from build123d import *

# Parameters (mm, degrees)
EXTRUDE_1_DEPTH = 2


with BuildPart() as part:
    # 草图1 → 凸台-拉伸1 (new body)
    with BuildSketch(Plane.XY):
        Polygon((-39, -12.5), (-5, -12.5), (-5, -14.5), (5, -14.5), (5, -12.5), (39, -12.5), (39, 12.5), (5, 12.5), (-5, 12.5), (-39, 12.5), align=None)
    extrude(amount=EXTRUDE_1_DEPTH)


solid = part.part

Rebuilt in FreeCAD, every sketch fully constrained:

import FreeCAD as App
import Part
import Sketcher
Q = App.Units.Quantity

doc = App.newDocument("Part")
body = doc.addObject("PartDesign::Body", "Body")

sketch1 = body.newObject("Sketcher::SketchObject", "Sketch")
sketch1.AttachmentSupport = (doc.getObject("XY_Plane"), [""])
sketch1.MapMode = "FlatFace"
sketch1.addGeometry([
    Part.LineSegment(App.Vector(-39, -12.5, 0), App.Vector(-5, -12.5, 0)),
    Part.LineSegment(App.Vector(-5, -12.5, 0), App.Vector(-5, -14.5, 0)),
    Part.LineSegment(App.Vector(-5, -14.5, 0), App.Vector(5, -14.5, 0)),
    Part.LineSegment(App.Vector(5, -14.5, 0), App.Vector(5, -12.5, 0)),
    Part.LineSegment(App.Vector(5, -12.5, 0), App.Vector(39, -12.5, 0)),
    Part.LineSegment(App.Vector(39, -12.5, 0), App.Vector(39, 12.5, 0)),
    Part.LineSegment(App.Vector(39, 12.5, 0), App.Vector(-39, 12.5, 0)),
    Part.LineSegment(App.Vector(-39, 12.5, 0), App.Vector(-39, -12.5, 0)),
], False)
sketch1.addConstraint([
    Sketcher.Constraint("Coincident", 0, 2, 1, 1),
    Sketcher.Constraint("Coincident", 1, 2, 2, 1),
    Sketcher.Constraint("Coincident", 2, 2, 3, 1),
    Sketcher.Constraint("Coincident", 3, 2, 4, 1),
    Sketcher.Constraint("Coincident", 4, 2, 5, 1),
    Sketcher.Constraint("Coincident", 5, 2, 6, 1),
    Sketcher.Constraint("Coincident", 6, 2, 7, 1),
    Sketcher.Constraint("Coincident", 7, 2, 0, 1),
    Sketcher.Constraint("Horizontal", 0),
    Sketcher.Constraint("Vertical", 1),
    Sketcher.Constraint("Horizontal", 2),
    Sketcher.Constraint("Vertical", 3),
    Sketcher.Constraint("Horizontal", 4),
    Sketcher.Constraint("Vertical", 5),
    Sketcher.Constraint("Horizontal", 6),
    Sketcher.Constraint("Vertical", 7),
    Sketcher.Constraint("Symmetric", 4, 2, 6, 2, -1, 1),
    Sketcher.Constraint("Symmetric", 0, 2, 3, 2, -2),
    Sketcher.Constraint("DistanceX", 0, 1, 0, 2, Q("34 mm")),
    Sketcher.Constraint("DistanceX", 2, 1, 2, 2, Q("10 mm")),
    Sketcher.Constraint("DistanceY", 1, 2, 1, 1, Q("2 mm")),
    Sketcher.Constraint("DistanceY", 5, 1, 5, 2, Q("25 mm")),
])
pad1 = body.newObject("PartDesign::Pad", "Pad")
pad1.Profile = sketch1
pad1.Length = 2

doc.recompute()
